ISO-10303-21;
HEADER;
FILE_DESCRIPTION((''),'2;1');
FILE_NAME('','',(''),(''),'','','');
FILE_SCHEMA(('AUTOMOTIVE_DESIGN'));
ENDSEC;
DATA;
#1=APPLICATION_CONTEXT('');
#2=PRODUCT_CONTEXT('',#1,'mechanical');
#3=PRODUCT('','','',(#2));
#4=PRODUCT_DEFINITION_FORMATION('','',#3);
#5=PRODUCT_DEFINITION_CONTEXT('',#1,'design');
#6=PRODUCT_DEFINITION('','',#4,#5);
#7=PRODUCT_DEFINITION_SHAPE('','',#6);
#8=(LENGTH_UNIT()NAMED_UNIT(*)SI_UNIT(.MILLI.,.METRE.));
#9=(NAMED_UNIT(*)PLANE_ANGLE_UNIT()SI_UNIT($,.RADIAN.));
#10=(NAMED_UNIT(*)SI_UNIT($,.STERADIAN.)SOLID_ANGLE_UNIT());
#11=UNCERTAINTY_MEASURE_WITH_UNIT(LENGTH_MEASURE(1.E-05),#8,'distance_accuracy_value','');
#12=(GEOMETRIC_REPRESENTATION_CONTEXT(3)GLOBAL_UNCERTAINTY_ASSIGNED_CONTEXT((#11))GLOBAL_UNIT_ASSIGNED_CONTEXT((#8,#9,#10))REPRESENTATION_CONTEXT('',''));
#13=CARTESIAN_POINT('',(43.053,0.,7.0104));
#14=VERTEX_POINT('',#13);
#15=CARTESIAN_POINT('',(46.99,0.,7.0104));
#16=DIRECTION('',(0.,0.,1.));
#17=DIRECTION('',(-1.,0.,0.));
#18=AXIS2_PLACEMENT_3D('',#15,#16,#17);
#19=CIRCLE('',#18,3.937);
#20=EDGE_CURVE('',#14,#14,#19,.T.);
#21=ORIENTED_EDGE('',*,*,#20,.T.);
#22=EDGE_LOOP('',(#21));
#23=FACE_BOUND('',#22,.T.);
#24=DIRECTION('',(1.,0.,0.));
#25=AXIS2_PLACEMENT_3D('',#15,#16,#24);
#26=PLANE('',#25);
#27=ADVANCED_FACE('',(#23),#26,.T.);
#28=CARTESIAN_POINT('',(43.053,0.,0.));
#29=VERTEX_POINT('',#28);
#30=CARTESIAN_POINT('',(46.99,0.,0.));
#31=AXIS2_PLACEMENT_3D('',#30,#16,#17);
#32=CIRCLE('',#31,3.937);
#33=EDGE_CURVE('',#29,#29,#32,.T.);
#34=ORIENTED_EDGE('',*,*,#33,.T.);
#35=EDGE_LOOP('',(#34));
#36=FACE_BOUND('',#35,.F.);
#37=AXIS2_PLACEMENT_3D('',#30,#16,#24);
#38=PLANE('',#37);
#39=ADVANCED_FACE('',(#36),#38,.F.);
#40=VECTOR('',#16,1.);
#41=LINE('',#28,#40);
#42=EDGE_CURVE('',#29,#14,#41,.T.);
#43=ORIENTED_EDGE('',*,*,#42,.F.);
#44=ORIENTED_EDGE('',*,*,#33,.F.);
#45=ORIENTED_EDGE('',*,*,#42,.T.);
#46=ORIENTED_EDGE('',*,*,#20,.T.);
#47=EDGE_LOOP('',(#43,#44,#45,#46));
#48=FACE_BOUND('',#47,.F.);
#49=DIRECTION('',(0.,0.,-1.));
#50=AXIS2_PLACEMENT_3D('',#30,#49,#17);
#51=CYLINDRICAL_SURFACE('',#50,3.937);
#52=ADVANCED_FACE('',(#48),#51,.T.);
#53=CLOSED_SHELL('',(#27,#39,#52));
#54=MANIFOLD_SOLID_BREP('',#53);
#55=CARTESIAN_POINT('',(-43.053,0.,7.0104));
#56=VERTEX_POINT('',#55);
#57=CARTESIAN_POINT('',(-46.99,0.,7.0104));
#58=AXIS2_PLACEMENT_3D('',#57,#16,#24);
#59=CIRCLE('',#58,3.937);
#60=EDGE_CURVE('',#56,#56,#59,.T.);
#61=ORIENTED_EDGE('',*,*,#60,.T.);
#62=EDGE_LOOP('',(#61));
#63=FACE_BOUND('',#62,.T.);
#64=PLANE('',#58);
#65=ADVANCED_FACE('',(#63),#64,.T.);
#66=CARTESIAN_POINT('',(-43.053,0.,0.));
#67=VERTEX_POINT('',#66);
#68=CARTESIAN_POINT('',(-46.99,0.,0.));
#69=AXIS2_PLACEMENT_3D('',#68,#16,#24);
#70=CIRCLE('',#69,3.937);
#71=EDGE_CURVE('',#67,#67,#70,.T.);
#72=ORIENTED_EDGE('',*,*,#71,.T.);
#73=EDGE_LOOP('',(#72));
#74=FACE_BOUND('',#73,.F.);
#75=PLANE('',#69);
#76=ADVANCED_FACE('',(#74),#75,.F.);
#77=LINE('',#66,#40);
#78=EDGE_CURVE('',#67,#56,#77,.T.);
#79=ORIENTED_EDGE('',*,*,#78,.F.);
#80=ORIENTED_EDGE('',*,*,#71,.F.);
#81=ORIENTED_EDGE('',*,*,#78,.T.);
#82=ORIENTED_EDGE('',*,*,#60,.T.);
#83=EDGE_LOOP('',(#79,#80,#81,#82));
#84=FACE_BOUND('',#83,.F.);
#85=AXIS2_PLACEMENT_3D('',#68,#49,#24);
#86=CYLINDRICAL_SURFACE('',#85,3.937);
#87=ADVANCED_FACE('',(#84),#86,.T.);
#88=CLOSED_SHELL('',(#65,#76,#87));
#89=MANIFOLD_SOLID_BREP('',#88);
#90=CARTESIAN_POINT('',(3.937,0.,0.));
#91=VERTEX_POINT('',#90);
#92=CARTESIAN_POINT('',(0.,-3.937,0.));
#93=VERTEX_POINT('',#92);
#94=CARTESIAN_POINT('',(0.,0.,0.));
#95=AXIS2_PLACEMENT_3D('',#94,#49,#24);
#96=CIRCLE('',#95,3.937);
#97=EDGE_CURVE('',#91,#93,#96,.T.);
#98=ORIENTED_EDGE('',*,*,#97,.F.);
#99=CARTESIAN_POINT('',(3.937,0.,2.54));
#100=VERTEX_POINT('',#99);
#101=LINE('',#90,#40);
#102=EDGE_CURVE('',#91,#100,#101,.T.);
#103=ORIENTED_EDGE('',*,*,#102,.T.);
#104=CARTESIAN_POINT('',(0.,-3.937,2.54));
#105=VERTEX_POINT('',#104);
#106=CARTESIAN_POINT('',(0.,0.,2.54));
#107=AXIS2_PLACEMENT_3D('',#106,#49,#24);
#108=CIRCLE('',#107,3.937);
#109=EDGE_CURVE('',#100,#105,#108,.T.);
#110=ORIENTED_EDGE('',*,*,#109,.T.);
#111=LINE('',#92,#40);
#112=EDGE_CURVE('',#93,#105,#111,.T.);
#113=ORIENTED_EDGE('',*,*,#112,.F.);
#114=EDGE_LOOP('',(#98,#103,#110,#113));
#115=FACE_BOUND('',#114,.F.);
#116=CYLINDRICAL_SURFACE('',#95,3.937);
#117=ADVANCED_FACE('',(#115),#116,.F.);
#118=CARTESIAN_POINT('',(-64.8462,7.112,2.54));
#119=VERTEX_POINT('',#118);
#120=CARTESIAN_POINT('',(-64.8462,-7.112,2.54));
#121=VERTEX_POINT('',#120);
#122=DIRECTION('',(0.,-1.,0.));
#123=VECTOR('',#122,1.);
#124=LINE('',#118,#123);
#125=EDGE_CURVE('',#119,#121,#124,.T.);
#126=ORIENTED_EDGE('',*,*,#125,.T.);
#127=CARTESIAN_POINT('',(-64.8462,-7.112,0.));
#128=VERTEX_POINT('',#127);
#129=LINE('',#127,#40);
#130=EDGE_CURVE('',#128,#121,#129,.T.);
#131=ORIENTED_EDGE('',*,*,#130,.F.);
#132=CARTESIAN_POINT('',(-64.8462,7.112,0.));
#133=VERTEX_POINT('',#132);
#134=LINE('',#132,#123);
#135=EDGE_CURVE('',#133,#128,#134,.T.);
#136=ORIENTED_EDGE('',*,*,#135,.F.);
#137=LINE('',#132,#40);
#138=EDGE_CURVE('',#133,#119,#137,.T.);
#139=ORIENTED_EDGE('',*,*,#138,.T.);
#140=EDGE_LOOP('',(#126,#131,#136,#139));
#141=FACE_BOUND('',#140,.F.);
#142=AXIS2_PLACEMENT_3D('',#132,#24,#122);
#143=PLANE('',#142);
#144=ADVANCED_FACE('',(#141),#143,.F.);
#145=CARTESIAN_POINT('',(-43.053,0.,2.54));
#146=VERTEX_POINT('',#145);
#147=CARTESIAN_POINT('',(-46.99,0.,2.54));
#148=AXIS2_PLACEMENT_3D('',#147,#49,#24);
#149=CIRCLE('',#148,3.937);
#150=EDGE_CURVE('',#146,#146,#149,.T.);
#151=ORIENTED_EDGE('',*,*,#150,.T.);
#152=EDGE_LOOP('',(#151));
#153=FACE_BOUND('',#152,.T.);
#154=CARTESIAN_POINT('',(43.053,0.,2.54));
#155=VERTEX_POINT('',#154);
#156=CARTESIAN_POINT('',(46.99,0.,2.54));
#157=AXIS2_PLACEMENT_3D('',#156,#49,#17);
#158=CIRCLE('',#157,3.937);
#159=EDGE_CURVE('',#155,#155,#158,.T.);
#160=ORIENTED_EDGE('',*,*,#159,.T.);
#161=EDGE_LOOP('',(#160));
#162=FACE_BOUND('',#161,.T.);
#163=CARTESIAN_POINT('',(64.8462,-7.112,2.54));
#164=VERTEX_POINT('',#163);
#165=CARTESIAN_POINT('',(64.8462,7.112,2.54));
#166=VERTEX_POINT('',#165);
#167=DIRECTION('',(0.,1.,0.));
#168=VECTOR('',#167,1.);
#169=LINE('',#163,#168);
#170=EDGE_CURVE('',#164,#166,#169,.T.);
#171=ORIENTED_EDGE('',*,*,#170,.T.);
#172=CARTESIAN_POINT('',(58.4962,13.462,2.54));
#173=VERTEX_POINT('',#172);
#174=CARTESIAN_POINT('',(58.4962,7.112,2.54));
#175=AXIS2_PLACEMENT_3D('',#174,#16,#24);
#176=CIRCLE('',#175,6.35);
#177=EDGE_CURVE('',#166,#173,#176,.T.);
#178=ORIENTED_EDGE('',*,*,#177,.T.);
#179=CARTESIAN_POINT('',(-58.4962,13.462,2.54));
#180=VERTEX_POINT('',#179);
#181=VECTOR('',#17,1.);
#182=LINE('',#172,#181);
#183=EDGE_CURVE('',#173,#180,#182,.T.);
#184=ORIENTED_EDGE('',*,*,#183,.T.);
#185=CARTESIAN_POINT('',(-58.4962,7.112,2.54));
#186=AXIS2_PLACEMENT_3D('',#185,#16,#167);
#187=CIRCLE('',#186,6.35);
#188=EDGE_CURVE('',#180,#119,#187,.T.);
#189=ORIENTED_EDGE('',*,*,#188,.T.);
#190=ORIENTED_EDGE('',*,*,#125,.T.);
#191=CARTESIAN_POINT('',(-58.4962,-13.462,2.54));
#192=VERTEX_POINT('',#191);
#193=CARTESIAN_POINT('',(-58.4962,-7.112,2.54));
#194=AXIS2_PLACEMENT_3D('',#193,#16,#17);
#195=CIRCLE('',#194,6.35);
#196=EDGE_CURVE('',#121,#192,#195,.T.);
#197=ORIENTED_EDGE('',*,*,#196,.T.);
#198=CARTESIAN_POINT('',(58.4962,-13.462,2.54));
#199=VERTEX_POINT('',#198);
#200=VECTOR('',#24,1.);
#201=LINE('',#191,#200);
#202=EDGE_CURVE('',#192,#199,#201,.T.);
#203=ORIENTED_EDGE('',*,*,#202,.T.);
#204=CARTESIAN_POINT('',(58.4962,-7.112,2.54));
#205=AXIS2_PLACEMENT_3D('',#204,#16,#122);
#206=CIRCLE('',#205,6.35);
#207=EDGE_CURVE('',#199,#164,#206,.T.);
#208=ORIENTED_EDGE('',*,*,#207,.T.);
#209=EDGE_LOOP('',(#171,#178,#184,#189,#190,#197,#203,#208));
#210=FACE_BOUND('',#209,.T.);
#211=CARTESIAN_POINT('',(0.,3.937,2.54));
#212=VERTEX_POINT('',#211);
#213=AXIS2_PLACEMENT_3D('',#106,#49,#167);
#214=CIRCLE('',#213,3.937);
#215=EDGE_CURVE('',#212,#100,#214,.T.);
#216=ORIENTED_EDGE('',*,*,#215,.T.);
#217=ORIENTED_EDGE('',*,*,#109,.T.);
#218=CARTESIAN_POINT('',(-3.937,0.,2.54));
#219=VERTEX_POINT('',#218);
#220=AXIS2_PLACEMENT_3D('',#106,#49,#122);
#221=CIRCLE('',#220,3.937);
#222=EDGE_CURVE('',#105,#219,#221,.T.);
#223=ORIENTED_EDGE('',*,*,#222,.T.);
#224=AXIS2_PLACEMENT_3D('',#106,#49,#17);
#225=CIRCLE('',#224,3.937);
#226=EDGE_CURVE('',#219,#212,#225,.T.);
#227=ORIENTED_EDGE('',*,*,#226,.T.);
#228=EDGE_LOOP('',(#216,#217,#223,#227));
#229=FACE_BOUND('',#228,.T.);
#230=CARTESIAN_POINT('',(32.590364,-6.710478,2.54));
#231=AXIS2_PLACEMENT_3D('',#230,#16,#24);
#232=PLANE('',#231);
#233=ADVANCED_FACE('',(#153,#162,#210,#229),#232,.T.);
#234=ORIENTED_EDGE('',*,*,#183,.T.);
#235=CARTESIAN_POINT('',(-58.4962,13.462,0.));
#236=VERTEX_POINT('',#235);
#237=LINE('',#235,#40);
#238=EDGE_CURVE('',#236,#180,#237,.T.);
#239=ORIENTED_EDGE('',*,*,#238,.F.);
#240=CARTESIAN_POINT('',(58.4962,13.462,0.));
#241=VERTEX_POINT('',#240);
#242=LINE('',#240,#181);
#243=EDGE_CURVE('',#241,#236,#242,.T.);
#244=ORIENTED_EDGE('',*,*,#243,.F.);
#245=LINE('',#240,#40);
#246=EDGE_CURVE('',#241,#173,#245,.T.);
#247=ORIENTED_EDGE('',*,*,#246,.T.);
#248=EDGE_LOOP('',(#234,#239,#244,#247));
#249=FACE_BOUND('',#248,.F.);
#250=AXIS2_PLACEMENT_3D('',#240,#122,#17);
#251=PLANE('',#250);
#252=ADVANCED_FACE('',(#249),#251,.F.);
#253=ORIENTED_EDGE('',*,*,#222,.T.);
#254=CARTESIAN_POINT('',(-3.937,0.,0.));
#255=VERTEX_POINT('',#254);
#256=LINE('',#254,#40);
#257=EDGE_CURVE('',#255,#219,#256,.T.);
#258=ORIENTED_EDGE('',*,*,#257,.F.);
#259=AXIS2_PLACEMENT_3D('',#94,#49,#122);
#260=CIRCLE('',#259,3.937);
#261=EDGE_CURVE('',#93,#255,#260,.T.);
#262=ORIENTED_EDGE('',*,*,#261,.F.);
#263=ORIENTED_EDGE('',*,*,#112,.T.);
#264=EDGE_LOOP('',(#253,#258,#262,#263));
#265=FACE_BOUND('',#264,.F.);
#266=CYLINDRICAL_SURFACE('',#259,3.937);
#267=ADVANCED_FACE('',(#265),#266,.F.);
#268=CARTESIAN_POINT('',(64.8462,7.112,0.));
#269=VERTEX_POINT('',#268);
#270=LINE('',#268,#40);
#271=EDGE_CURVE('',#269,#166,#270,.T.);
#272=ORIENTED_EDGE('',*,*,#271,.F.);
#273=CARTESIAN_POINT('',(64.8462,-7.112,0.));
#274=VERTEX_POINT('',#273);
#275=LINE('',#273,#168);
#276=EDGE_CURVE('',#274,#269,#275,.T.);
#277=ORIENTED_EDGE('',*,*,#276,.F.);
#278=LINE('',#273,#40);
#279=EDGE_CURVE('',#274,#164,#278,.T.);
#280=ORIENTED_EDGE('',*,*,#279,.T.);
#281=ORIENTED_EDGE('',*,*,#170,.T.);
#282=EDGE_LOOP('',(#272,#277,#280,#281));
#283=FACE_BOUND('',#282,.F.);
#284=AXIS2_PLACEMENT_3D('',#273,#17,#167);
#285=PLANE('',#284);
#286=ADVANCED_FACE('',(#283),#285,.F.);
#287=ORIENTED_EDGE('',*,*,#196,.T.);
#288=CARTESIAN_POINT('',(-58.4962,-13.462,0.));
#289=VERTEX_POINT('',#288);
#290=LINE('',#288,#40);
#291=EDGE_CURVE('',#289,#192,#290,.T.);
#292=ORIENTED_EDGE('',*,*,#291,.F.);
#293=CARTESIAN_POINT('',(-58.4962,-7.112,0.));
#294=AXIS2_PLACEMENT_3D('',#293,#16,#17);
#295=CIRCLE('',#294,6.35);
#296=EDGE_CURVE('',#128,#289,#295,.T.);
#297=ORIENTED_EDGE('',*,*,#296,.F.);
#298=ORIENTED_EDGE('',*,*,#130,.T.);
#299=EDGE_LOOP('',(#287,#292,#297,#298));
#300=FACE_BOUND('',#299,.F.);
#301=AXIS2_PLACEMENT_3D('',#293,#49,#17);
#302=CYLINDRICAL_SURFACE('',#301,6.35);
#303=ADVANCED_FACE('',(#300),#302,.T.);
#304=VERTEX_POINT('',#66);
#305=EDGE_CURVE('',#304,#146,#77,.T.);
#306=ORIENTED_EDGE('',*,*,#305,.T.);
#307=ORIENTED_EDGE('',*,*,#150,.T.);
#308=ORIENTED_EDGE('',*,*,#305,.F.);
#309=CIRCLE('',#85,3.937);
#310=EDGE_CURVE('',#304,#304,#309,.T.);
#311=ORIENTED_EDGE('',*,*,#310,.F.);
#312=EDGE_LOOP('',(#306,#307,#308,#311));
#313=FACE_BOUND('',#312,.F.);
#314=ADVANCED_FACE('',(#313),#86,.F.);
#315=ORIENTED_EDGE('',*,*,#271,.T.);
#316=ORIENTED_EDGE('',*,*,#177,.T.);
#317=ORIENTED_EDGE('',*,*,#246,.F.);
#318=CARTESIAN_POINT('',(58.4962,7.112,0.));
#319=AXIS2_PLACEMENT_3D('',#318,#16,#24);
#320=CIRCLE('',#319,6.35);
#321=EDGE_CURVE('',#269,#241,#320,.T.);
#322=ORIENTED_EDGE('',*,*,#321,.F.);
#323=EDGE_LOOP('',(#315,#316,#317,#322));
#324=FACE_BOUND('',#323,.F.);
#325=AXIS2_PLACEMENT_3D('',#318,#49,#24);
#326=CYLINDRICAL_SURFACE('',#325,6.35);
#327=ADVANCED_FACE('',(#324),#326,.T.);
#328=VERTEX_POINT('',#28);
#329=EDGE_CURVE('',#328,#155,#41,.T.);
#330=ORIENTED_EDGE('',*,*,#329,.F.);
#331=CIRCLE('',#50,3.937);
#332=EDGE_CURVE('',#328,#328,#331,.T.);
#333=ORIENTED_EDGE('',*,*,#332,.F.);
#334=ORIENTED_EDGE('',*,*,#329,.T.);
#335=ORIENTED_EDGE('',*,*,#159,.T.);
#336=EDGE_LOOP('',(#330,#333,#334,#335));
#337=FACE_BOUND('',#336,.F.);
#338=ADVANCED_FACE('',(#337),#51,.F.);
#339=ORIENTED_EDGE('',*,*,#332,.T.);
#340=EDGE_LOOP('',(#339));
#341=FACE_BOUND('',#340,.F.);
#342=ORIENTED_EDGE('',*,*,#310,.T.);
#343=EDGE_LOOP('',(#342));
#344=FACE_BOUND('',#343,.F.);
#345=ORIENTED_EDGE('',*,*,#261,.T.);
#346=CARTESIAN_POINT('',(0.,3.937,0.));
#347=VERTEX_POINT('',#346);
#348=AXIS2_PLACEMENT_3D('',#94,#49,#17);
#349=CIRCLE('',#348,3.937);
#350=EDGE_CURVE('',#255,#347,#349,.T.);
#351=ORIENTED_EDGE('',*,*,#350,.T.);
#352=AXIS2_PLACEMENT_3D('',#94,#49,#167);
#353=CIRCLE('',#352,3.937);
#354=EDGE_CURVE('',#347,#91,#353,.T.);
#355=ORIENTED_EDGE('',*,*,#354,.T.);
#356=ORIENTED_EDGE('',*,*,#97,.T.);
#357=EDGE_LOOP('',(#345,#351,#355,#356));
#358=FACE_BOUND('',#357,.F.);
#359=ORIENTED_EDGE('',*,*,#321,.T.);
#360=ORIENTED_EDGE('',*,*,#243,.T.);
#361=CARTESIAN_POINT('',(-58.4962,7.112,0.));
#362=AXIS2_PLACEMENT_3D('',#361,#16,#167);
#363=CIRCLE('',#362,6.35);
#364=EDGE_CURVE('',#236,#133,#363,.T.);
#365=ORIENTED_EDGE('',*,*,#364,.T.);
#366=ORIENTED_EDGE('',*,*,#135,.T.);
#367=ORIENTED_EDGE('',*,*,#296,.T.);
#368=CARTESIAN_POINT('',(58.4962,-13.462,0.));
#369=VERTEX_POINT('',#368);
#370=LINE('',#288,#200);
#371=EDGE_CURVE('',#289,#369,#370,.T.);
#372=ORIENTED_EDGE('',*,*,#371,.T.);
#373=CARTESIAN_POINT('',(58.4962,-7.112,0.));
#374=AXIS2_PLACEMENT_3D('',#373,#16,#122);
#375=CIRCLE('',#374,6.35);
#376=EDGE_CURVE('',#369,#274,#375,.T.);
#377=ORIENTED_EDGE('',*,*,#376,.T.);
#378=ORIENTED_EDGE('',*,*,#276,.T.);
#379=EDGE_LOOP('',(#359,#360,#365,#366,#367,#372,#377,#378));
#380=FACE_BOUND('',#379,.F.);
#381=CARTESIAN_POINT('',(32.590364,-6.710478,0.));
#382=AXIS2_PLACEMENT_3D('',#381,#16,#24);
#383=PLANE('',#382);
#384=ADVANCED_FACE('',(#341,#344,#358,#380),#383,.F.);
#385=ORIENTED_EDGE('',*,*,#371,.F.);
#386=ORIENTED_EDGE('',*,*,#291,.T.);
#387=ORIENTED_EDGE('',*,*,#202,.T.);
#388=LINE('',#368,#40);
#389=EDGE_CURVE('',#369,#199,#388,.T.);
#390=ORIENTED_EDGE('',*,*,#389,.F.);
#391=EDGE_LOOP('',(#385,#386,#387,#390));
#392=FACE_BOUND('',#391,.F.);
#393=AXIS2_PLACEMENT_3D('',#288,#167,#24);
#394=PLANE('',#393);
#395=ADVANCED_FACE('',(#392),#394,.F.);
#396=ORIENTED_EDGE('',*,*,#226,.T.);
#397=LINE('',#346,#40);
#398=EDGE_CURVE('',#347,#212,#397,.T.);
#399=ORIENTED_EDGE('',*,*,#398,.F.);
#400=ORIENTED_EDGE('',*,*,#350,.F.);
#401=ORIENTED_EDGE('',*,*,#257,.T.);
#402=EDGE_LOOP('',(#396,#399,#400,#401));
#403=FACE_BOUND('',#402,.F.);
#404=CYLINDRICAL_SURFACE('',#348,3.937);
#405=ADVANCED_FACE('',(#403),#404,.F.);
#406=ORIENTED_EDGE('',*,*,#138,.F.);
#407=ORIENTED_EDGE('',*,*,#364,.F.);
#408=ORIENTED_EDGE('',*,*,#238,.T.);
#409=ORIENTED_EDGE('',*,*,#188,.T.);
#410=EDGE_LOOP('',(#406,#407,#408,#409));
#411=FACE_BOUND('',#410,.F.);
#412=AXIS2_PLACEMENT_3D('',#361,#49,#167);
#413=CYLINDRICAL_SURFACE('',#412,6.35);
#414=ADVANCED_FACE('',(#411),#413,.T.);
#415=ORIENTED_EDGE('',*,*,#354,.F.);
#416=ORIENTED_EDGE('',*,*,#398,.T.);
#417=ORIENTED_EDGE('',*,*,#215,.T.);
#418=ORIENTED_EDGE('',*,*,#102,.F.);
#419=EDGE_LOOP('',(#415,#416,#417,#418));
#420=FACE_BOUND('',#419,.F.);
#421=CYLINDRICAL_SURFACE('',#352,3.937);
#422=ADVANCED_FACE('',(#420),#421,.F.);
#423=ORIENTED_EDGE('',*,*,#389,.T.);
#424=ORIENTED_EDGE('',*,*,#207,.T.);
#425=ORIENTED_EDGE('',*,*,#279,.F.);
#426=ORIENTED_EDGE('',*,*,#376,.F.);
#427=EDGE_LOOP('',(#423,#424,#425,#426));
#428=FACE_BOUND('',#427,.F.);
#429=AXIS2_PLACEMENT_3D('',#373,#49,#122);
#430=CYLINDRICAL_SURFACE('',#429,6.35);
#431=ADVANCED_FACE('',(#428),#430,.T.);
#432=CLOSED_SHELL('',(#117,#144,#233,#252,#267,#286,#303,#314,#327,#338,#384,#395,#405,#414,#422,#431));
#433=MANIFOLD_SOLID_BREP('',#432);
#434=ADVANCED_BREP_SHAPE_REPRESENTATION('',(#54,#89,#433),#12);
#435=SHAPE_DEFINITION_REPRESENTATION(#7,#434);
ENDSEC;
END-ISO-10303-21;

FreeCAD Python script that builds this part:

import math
import FreeCAD as App
import Part
import Sketcher

V = App.Vector
Q = App.Units.Quantity

doc = App.newDocument("Part")
body = doc.addObject("PartDesign::Body", "Body")

sketch1 = doc.addObject("Sketcher::SketchObject", "Sketch")
body.addObject(sketch1)
sketch1.AttachmentSupport = (doc.XY_Plane, [""])
sketch1.MapMode = "FlatFace"
sketch1.addGeometry(Part.Circle(V(47, 0, 0), V(0, 0, 1), 3.9), False)
sketch1.addConstraint([
    Sketcher.Constraint("PointOnObject", 0, 3, -1),
    Sketcher.Constraint("Diameter", 0, Q("0.31 in")),
    Sketcher.Constraint("DistanceX", -1, 1, 0, 3, Q("1.85 in")),
])
pad1 = doc.addObject("PartDesign::Pad", "Pad")
body.addObject(pad1)
pad1.Profile = sketch1
pad1.Length = Q("0.276 in")
body2 = doc.addObject("PartDesign::Body", "Body001")

sketch2 = doc.addObject("Sketcher::SketchObject", "Sketch001")
body2.addObject(sketch2)
sketch2.AttachmentSupport = (doc.getObject("XY_Plane001"), [""])
sketch2.MapMode = "FlatFace"
sketch2.addGeometry(Part.Circle(V(-47, 0, 0), V(0, 0, 1), 3.9), False)
sketch2.addConstraint([
    Sketcher.Constraint("PointOnObject", 0, 3, -1),
    Sketcher.Constraint("Diameter", 0, Q("0.31 in")),
    Sketcher.Constraint("DistanceX", 0, 3, -1, 1, Q("1.85 in")),
])
pad2 = doc.addObject("PartDesign::Pad", "Pad001")
body2.addObject(pad2)
pad2.Profile = sketch2
pad2.Length = Q("0.276 in")
body3 = doc.addObject("PartDesign::Body", "Body002")

sketch3 = doc.addObject("Sketcher::SketchObject", "Sketch002")
body3.addObject(sketch3)
sketch3.AttachmentSupport = (doc.getObject("XY_Plane002"), [""])
sketch3.MapMode = "FlatFace"
sketch3.addGeometry([
    Part.ArcOfCircle(Part.Circle(V(58.5, -7.1, 0), V(0, 0, 1), 6.3), math.radians(-90), math.radians(0)),
    Part.LineSegment(V(64.8, -7.1, 0), V(64.8, 7.1, 0)),
    Part.ArcOfCircle(Part.Circle(V(58.5, 7.1, 0), V(0, 0, 1), 6.3), math.radians(0), math.radians(90)),
    Part.LineSegment(V(58.5, 13.5, 0), V(-58.5, 13.5, 0)),
    Part.ArcOfCircle(Part.Circle(V(-58.5, 7.1, 0), V(0, 0, 1), 6.3), math.radians(90), math.radians(180)),
    Part.LineSegment(V(-64.8, 7.1, 0), V(-64.8, -7.1, 0)),
    Part.ArcOfCircle(Part.Circle(V(-58.5, -7.1, 0), V(0, 0, 1), 6.3), math.radians(180), math.radians(270)),
    Part.LineSegment(V(-58.5, -13.5, 0), V(58.5, -13.5, 0)),
    Part.ArcOfCircle(Part.Circle(V(0, 0, 0), V(0, 0, 1), 3.9), math.radians(-90), math.radians(0)),
    Part.ArcOfCircle(Part.Circle(V(0, 0, 0), V(0, 0, 1), 3.9), math.radians(180), math.radians(270)),
    Part.ArcOfCircle(Part.Circle(V(0, 0, 0), V(0, 0, 1), 3.9), math.radians(90), math.radians(180)),
    Part.ArcOfCircle(Part.Circle(V(0, 0, 0), V(0, 0, 1), 3.9), math.radians(0), math.radians(90)),
    Part.Circle(V(-47, 0, 0), V(0, 0, 1), 3.9),
    Part.Circle(V(47, 0, 0), V(0, 0, 1), 3.9),
], False)
sketch3.addConstraint([
    Sketcher.Constraint("Tangent", 0, 2, 1, 1),
    Sketcher.Constraint("Tangent", 1, 2, 2, 1),
    Sketcher.Constraint("Tangent", 2, 2, 3, 1),
    Sketcher.Constraint("Tangent", 3, 2, 4, 1),
    Sketcher.Constraint("Tangent", 4, 2, 5, 1),
    Sketcher.Constraint("Tangent", 5, 2, 6, 1),
    Sketcher.Constraint("Tangent", 6, 2, 7, 1),
    Sketcher.Constraint("Tangent", 7, 2, 0, 1),
    Sketcher.Constraint("Tangent", 8, 1, 9, 2),
    Sketcher.Constraint("Tangent", 9, 1, 10, 2),
    Sketcher.Constraint("Tangent", 10, 1, 11, 2),
    Sketcher.Constraint("Tangent", 11, 1, 8, 2),
    Sketcher.Constraint("Vertical", 1),
    Sketcher.Constraint("Horizontal", 3),
    Sketcher.Constraint("Vertical", 5),
    Sketcher.Constraint("Horizontal", 7),
    Sketcher.Constraint("Coincident", 8, 3, -1, 1),
    Sketcher.Constraint("Equal", 0, 2),
    Sketcher.Constraint("Equal", 2, 4),
    Sketcher.Constraint("Equal", 4, 6),
    Sketcher.Constraint("Equal", 8, 9),
    Sketcher.Constraint("Equal", 11, 12),
    Sketcher.Constraint("Equal", 12, 13),
    Sketcher.Constraint("Symmetric", 0, 3, 4, 3, -1, 1),
    Sketcher.Constraint("Symmetric", 12, 3, 13, 3, -1, 1),
    Sketcher.Constraint("PointOnObject", 12, 3, -1),
    Sketcher.Constraint("PointOnObject", 8, 1, -2),
    Sketcher.Constraint("PointOnObject", 9, 1, -1),
    Sketcher.Constraint("PointOnObject", 10, 1, -2),
    Sketcher.Constraint("PointOnObject", 11, 1, -1),
    Sketcher.Constraint("Diameter", 12, Q("0.31 in")),
    Sketcher.Constraint("Radius", 0, Q("0.25 in")),
    Sketcher.Constraint("DistanceY", 1, 1, 1, 2, Q("0.56 in")),
    Sketcher.Constraint("DistanceX", 3, 2, 3, 1, Q("4.606 in")),
    Sketcher.Constraint("DistanceX", 12, 3, -1, 1, Q("1.85 in")),
])
pad3 = doc.addObject("PartDesign::Pad", "Pad002")
body3.addObject(pad3)
pad3.Profile = sketch3
pad3.Length = Q("0.1 in")

doc.recompute()
